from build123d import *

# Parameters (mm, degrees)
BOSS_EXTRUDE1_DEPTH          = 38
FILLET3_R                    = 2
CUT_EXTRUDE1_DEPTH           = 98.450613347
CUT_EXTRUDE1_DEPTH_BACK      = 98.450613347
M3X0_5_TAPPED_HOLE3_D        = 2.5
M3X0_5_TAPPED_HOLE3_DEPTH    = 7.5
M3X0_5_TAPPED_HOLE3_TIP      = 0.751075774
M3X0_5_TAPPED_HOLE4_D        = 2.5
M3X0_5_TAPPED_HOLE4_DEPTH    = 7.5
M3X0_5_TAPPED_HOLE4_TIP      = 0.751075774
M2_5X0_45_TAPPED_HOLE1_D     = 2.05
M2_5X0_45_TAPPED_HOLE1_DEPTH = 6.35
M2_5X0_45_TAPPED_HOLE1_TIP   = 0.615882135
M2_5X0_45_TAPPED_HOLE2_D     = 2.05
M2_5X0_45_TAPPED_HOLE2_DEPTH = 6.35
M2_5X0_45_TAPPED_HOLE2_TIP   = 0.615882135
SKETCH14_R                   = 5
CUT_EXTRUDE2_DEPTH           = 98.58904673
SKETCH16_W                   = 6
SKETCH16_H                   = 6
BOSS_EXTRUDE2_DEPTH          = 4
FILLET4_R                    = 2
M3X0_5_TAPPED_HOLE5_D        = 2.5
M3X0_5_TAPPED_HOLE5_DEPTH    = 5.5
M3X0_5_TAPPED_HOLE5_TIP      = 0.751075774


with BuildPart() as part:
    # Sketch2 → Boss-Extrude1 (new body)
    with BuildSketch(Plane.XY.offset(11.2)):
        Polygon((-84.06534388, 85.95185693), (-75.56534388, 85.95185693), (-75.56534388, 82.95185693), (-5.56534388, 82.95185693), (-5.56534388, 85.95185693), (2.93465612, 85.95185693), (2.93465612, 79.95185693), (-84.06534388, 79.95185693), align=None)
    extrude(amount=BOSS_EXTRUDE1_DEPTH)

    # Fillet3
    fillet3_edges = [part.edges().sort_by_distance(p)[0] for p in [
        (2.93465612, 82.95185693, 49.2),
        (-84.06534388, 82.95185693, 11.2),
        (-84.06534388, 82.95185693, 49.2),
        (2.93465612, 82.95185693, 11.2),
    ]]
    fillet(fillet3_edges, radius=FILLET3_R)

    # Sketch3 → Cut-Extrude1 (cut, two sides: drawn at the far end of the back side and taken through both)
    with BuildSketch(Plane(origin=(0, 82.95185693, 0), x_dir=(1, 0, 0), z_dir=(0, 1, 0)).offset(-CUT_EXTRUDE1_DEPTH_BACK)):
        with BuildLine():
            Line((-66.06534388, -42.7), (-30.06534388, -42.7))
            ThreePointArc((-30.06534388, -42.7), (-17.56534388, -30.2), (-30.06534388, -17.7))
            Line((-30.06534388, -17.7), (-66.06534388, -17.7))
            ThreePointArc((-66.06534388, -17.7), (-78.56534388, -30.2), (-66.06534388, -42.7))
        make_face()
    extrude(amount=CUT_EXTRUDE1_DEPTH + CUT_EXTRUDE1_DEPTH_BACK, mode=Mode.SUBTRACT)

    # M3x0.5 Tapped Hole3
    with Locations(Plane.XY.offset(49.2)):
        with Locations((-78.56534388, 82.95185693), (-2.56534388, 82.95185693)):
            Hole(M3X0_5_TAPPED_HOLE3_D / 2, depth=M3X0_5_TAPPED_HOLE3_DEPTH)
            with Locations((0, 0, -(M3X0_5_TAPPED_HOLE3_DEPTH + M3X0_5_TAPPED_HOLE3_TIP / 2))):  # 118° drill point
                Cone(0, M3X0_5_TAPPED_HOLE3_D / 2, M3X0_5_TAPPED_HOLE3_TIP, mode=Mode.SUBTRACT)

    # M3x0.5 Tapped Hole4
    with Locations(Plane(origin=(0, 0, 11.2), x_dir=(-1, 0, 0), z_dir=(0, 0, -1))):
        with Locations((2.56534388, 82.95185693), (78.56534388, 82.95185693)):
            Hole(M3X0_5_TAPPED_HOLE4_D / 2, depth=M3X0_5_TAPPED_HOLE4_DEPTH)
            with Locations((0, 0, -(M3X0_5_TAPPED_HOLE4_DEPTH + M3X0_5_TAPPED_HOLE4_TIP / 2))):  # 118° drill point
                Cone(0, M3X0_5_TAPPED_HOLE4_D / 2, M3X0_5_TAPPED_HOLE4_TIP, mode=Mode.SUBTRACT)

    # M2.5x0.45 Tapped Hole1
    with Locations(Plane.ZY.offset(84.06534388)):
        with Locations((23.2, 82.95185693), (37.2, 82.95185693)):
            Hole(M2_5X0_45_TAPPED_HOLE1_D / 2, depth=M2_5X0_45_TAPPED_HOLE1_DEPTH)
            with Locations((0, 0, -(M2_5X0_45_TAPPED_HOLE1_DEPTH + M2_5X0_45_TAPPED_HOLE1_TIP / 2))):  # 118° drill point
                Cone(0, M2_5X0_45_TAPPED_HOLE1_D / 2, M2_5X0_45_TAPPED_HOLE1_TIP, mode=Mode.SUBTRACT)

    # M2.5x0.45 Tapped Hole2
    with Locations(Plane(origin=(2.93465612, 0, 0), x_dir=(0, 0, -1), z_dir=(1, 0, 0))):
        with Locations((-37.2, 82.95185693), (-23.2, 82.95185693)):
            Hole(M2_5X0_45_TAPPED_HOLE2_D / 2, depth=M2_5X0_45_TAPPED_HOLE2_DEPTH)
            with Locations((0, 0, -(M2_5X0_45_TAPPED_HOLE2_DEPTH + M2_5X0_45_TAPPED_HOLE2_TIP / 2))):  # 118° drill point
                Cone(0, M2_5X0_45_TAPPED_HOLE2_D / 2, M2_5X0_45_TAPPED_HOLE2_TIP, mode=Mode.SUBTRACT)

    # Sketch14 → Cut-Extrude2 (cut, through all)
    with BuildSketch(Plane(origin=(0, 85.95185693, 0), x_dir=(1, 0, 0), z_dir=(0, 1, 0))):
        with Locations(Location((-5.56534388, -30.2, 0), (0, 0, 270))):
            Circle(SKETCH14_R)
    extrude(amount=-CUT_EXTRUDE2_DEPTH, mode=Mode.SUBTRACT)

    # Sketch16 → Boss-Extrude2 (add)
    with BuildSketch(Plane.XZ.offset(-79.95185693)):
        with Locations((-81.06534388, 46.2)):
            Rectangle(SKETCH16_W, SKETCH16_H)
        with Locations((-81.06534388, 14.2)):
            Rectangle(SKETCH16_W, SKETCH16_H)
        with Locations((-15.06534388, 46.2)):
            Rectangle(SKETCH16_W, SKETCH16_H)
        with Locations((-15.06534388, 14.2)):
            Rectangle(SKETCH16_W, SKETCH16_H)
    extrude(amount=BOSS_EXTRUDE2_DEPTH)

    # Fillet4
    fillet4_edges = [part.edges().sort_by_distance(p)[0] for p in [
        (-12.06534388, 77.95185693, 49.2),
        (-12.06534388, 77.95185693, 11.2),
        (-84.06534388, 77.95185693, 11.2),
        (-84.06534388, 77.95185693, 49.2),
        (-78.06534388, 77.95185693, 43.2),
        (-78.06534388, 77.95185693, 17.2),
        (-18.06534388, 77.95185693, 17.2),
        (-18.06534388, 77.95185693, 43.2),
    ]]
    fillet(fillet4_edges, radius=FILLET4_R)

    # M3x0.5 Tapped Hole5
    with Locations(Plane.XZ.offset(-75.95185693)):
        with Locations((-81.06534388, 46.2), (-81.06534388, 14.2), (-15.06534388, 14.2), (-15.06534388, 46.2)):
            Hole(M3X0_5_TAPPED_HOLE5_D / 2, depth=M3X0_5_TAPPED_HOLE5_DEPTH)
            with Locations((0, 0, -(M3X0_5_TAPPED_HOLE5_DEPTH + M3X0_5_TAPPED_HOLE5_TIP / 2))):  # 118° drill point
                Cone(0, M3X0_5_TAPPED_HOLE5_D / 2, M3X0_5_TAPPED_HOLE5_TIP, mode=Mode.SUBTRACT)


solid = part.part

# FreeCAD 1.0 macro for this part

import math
import FreeCAD as App
import Part
import Sketcher

V = App.Vector


def edges_at(feature, points):
    """Names of the edges that pass closest to the given points."""
    edges = feature.Shape.Edges
    near = lambda p: min(range(len(edges)), key=lambda i: edges[i].distToShape(Part.Vertex(*p))[0])
    return sorted({f"Edge{near(p) + 1}" for p in points})

doc = App.newDocument("Part")
params = doc.addObject("Spreadsheet::Sheet", "Params")
for row, (alias, value) in enumerate([
    ("sketch1_width", "87 mm"),
    ("sketch1_width2", "70 mm"),
    ("sketch1_height", "6 mm"),
    ("sketch1_height2", "3 mm"),
    ("pad1_length", "38 mm"),
    ("fillet_radius", "2 mm"),
    ("sketch2_radius", "12.5 mm"),
    ("sketch2_width", "36 mm"),
    ("sketch3_diameter", "2.5 mm"),
    ("hole_diameter", "2.5 mm"),
    ("hole_depth", "7.5 mm"),
    ("sketch4_diameter", "2.5 mm"),
    ("hole2_diameter", "2.5 mm"),
    ("hole2_depth", "7.5 mm"),
    ("sketch5_diameter", "2.05 mm"),
    ("hole3_diameter", "2.05 mm"),
    ("hole3_depth", "6.35 mm"),
    ("sketch6_diameter", "2.05 mm"),
    ("hole4_diameter", "2.05 mm"),
    ("hole4_depth", "6.35 mm"),
    ("sketch7_diameter", "10 mm"),
    ("sketch8_width", "6 mm"),
    ("pad2_length", "4 mm"),
    ("fillet2_radius", "2 mm"),
    ("sketch9_diameter", "2.5 mm"),
    ("hole5_diameter", "2.5 mm"),
    ("hole5_depth", "5.5 mm"),
], start=1):
    params.set(f"A{row}", alias)
    params.set(f"B{row}", "=" + value)
    params.setAlias(f"B{row}", alias)

body = doc.addObject("PartDesign::Body", "Body")

# Sketch on XY plane
sketch1 = body.newObject("Sketcher::SketchObject", "Sketch")
sketch1.AttachmentSupport = (doc.getObject("XY_Plane"), [""])
sketch1.MapMode = "FlatFace"
sketch1.AttachmentOffset = App.Placement(V(0, 0, 11.2), App.Rotation())
sketch1.addGeometry(Part.LineSegment(V(-75.6, 86, 0), V(-84.1, 86, 0)), False)
sketch1.addGeometry(Part.LineSegment(V(-84.1, 86, 0), V(-84.1, 80, 0)), False)
sketch1.addGeometry(Part.LineSegment(V(-84.1, 80, 0), V(2.9, 80, 0)), False)
sketch1.addGeometry(Part.LineSegment(V(2.9, 80, 0), V(2.9, 86, 0)), False)
sketch1.addGeometry(Part.LineSegment(V(2.9, 86, 0), V(-5.6, 86, 0)), False)
sketch1.addGeometry(Part.LineSegment(V(-5.6, 86, 0), V(-5.6, 83, 0)), False)
sketch1.addGeometry(Part.LineSegment(V(-5.6, 83, 0), V(-75.6, 83, 0)), False)
sketch1.addGeometry(Part.LineSegment(V(-75.6, 83, 0), V(-75.6, 86, 0)), False)
sketch1.addConstraint(Sketcher.Constraint("Coincident", 0, 2, 1, 1))
sketch1.addConstraint(Sketcher.Constraint("Coincident", 1, 2, 2, 1))
sketch1.addConstraint(Sketcher.Constraint("Coincident", 2, 2, 3, 1))
sketch1.addConstraint(Sketcher.Constraint("Coincident", 3, 2, 4, 1))
sketch1.addConstraint(Sketcher.Constraint("Coincident", 4, 2, 5, 1))
sketch1.addConstraint(Sketcher.Constraint("Coincident", 5, 2, 6, 1))
sketch1.addConstraint(Sketcher.Constraint("Coincident", 6, 2, 7, 1))
sketch1.addConstraint(Sketcher.Constraint("Coincident", 7, 2, 0, 1))
sketch1.addConstraint(Sketcher.Constraint("Horizontal", 0))
sketch1.addConstraint(Sketcher.Constraint("Vertical", 1))
sketch1.addConstraint(Sketcher.Constraint("Horizontal", 2))
sketch1.addConstraint(Sketcher.Constraint("Vertical", 3))
sketch1.addConstraint(Sketcher.Constraint("Horizontal", 4))
sketch1.addConstraint(Sketcher.Constraint("Vertical", 5))
sketch1.addConstraint(Sketcher.Constraint("Horizontal", 6))
sketch1.addConstraint(Sketcher.Constraint("Vertical", 7))
sketch1.addConstraint(Sketcher.Constraint("Horizontal", 0, 2, 3, 2))
sketch1.addConstraint(Sketcher.Constraint("Equal", 0, 4))
sketch1.addConstraint(Sketcher.Constraint("DistanceX", 2, 1, 2, 2, 87.0))
sketch1.addConstraint(Sketcher.Constraint("DistanceX", 6, 2, 6, 1, 70.0))
sketch1.addConstraint(Sketcher.Constraint("DistanceY", 1, 2, 1, 1, 6.0))
sketch1.addConstraint(Sketcher.Constraint("DistanceY", 5, 2, 5, 1, 3.0))
sketch1.addConstraint(Sketcher.Constraint("DistanceX", 0, 2, -1, 1, 84.065344))
sketch1.addConstraint(Sketcher.Constraint("DistanceY", -1, 1, 0, 2, 85.951857))
sketch1.setExpression("Constraints[18]", "Params.sketch1_width")
sketch1.setExpression("Constraints[19]", "Params.sketch1_width2")
sketch1.setExpression("Constraints[20]", "Params.sketch1_height")
sketch1.setExpression("Constraints[21]", "Params.sketch1_height2")
pad1 = body.newObject("PartDesign::Pad", "Pad")
pad1.Profile = sketch1
pad1.setExpression("Length", "Params.pad1_length")
doc.recompute()

fillet = body.newObject("PartDesign::Fillet", "Fillet")
fillet.Base = (pad1, edges_at(pad1, [
    (2.935, 82.952, 49.2),
    (-84.065, 82.952, 11.2),
    (-84.065, 82.952, 49.2),
    (2.935, 82.952, 11.2),
]))
fillet.setExpression("Radius", "Params.fillet_radius")

# Sketch on XZ plane
sketch2 = body.newObject("Sketcher::SketchObject", "Sketch001")
sketch2.AttachmentSupport = (doc.getObject("XZ_Plane"), [""])
sketch2.MapMode = "FlatFace"
sketch2.AttachmentOffset = App.Placement(V(0, 0, -82.951857), App.Rotation())
sketch2.addGeometry(Part.LineSegment(V(-66, 43, 0), V(-30, 43, 0)), False)
sketch2.addGeometry(Part.ArcOfCircle(Part.Circle(V(-30, 30, 0), V(0, 0, 1), 12), math.radians(-90), math.radians(90)), False)
sketch2.addGeometry(Part.LineSegment(V(-30, 18, 0), V(-66, 18, 0)), False)
sketch2.addGeometry(Part.ArcOfCircle(Part.Circle(V(-66, 30, 0), V(0, 0, 1), 12), math.radians(90), math.radians(270)), False)
sketch2.addConstraint(Sketcher.Constraint("Tangent", 0, 2, 1, 2))
sketch2.addConstraint(Sketcher.Constraint("Tangent", 1, 1, 2, 1))
sketch2.addConstraint(Sketcher.Constraint("Tangent", 2, 2, 3, 2))
sketch2.addConstraint(Sketcher.Constraint("Tangent", 3, 1, 0, 1))
sketch2.addConstraint(Sketcher.Constraint("Horizontal", 0))
sketch2.addConstraint(Sketcher.Constraint("Horizontal", 2))
sketch2.addConstraint(Sketcher.Constraint("Radius", 1, 12.5))
sketch2.addConstraint(Sketcher.Constraint("DistanceX", 0, 1, 0, 2, 36.0))
sketch2.addConstraint(Sketcher.Constraint("DistanceY", -1, 1, 1, 3, 30.2))
sketch2.addConstraint(Sketcher.Constraint("DistanceX", 1, 3, -1, 1, 30.065344))
sketch2.setExpression("Constraints[6]", "Params.sketch2_radius")
sketch2.setExpression("Constraints[7]", "Params.sketch2_width")
pocket1 = body.newObject("PartDesign::Pocket", "Pocket")
pocket1.Profile = sketch2
pocket1.Type = "ThroughAll"
pocket1.Midplane = True

# Sketch on XY plane
sketch3 = body.newObject("Sketcher::SketchObject", "Sketch002")
sketch3.AttachmentSupport = (doc.getObject("XY_Plane"), [""])
sketch3.MapMode = "FlatFace"
sketch3.AttachmentOffset = App.Placement(V(0, 0, 49.2), App.Rotation())
sketch3.addGeometry(Part.Circle(V(-78.6, 83, 0), V(0, 0, 1), 1.2), False)
sketch3.addGeometry(Part.Circle(V(-2.6, 83, 0), V(0, 0, 1), 1.2), False)
sketch3.addConstraint(Sketcher.Constraint("Equal", 0, 1))
sketch3.addConstraint(Sketcher.Constraint("Horizontal", 0, 3, 1, 3))
sketch3.addConstraint(Sketcher.Constraint("Diameter", 0, 2.5))
sketch3.addConstraint(Sketcher.Constraint("DistanceX", 0, 3, 1, 3, 76.0))
sketch3.addConstraint(Sketcher.Constraint("DistanceX", 0, 3, -1, 1, 78.565344))
sketch3.addConstraint(Sketcher.Constraint("DistanceY", -1, 1, 0, 3, 82.951857))
sketch3.setExpression("Constraints[2]", "Params.sketch3_diameter")
doc.recompute()
hole = body.newObject("PartDesign::Hole", "Hole")
hole.Profile = sketch3
hole.ThreadType = "None"
hole.setExpression("Diameter", "Params.hole_diameter")
hole.DepthType = "Dimension"
hole.setExpression("Depth", "Params.hole_depth")
hole.DrillPoint = "Angled"
hole.DrillPointAngle = 118

# Sketch on XY plane
sketch4 = body.newObject("Sketcher::SketchObject", "Sketch003")
sketch4.AttachmentSupport = (doc.getObject("XY_Plane"), [""])
sketch4.MapMode = "FlatFace"
sketch4.AttachmentOffset = App.Placement(V(0, 0, 11.2), App.Rotation())
sketch4.addGeometry(Part.Circle(V(-2.6, 83, 0), V(0, 0, 1), 1.2), False)
sketch4.addGeometry(Part.Circle(V(-78.6, 83, 0), V(0, 0, 1), 1.2), False)
sketch4.addConstraint(Sketcher.Constraint("Equal", 0, 1))
sketch4.addConstraint(Sketcher.Constraint("Horizontal", 0, 3, 1, 3))
sketch4.addConstraint(Sketcher.Constraint("Diameter", 0, 2.5))
sketch4.addConstraint(Sketcher.Constraint("DistanceX", 1, 3, 0, 3, 76.0))
sketch4.addConstraint(Sketcher.Constraint("DistanceX", 0, 3, -1, 1, 2.565344))
sketch4.addConstraint(Sketcher.Constraint("DistanceY", -1, 1, 0, 3, 82.951857))
sketch4.setExpression("Constraints[2]", "Params.sketch4_diameter")
doc.recompute()
hole2 = body.newObject("PartDesign::Hole", "Hole001")
hole2.Profile = sketch4
hole2.ThreadType = "None"
hole2.setExpression("Diameter", "Params.hole2_diameter")
hole2.DepthType = "Dimension"
hole2.setExpression("Depth", "Params.hole2_depth")
hole2.DrillPoint = "Angled"
hole2.DrillPointAngle = 118
hole2.Reversed = True

# Sketch on YZ plane
sketch5 = body.newObject("Sketcher::SketchObject", "Sketch004")
sketch5.AttachmentSupport = (doc.getObject("YZ_Plane"), [""])
sketch5.MapMode = "FlatFace"
sketch5.AttachmentOffset = App.Placement(V(0, 0, -84.065344), App.Rotation())
sketch5.addGeometry(Part.Circle(V(83, 23.2, 0), V(0, 0, 1), 1), False)
sketch5.addGeometry(Part.Circle(V(83, 37.2, 0), V(0, 0, 1), 1), False)
sketch5.addConstraint(Sketcher.Constraint("Equal", 0, 1))
sketch5.addConstraint(Sketcher.Constraint("Vertical", 0, 3, 1, 3))
sketch5.addConstraint(Sketcher.Constraint("Diameter", 0, 2.05))
sketch5.addConstraint(Sketcher.Constraint("DistanceY", 0, 3, 1, 3, 14.0))
sketch5.addConstraint(Sketcher.Constraint("DistanceY", -1, 1, 0, 3, 23.2))
sketch5.addConstraint(Sketcher.Constraint("DistanceX", -1, 1, 0, 3, 82.951857))
sketch5.setExpression("Constraints[2]", "Params.sketch5_diameter")
doc.recompute()
hole3 = body.newObject("PartDesign::Hole", "Hole002")
hole3.Profile = sketch5
hole3.ThreadType = "None"
hole3.setExpression("Diameter", "Params.hole3_diameter")
hole3.DepthType = "Dimension"
hole3.setExpression("Depth", "Params.hole3_depth")
hole3.DrillPoint = "Angled"
hole3.DrillPointAngle = 118
hole3.Reversed = True

# Sketch on YZ plane
sketch6 = body.newObject("Sketcher::SketchObject", "Sketch005")
sketch6.AttachmentSupport = (doc.getObject("YZ_Plane"), [""])
sketch6.MapMode = "FlatFace"
sketch6.AttachmentOffset = App.Placement(V(0, 0, 2.934656), App.Rotation())
sketch6.addGeometry(Part.Circle(V(83, 37.2, 0), V(0, 0, 1), 1), False)
sketch6.addGeometry(Part.Circle(V(83, 23.2, 0), V(0, 0, 1), 1), False)
sketch6.addConstraint(Sketcher.Constraint("Equal", 0, 1))
sketch6.addConstraint(Sketcher.Constraint("Vertical", 0, 3, 1, 3))
sketch6.addConstraint(Sketcher.Constraint("Diameter", 0, 2.05))
sketch6.addConstraint(Sketcher.Constraint("DistanceY", 1, 3, 0, 3, 14.0))
sketch6.addConstraint(Sketcher.Constraint("DistanceY", -1, 1, 0, 3, 37.2))
sketch6.addConstraint(Sketcher.Constraint("DistanceX", -1, 1, 0, 3, 82.951857))
sketch6.setExpression("Constraints[2]", "Params.sketch6_diameter")
doc.recompute()
hole4 = body.newObject("PartDesign::Hole", "Hole003")
hole4.Profile = sketch6
hole4.ThreadType = "None"
hole4.setExpression("Diameter", "Params.hole4_diameter")
hole4.DepthType = "Dimension"
hole4.setExpression("Depth", "Params.hole4_depth")
hole4.DrillPoint = "Angled"
hole4.DrillPointAngle = 118

# Sketch on XZ plane
sketch7 = body.newObject("Sketcher::SketchObject", "Sketch006")
sketch7.AttachmentSupport = (doc.getObject("XZ_Plane"), [""])
sketch7.MapMode = "FlatFace"
sketch7.AttachmentOffset = App.Placement(V(0, 0, -85.951857), App.Rotation())
sketch7.addGeometry(Part.Circle(V(-6, 30, 0), V(0, 0, 1), 5), False)
sketch7.addConstraint(Sketcher.Constraint("Diameter", 0, 10.0))
sketch7.addConstraint(Sketcher.Constraint("DistanceY", -1, 1, 0, 3, 30.2))
sketch7.addConstraint(Sketcher.Constraint("DistanceX", 0, 3, -1, 1, 5.565344))
sketch7.setExpression("Constraints[0]", "Params.sketch7_diameter")
pocket2 = body.newObject("PartDesign::Pocket", "Pocket001")
pocket2.Profile = sketch7
pocket2.Type = "ThroughAll"
pocket2.Reversed = True

# Sketch on XZ plane
sketch8 = body.newObject("Sketcher::SketchObject", "Sketch007")
sketch8.AttachmentSupport = (doc.getObject("XZ_Plane"), [""])
sketch8.MapMode = "FlatFace"
sketch8.AttachmentOffset = App.Placement(V(0, 0, -79.951857), App.Rotation())
sketch8.addGeometry(Part.LineSegment(V(-84, 49, 0), V(-84, 43, 0)), False)
sketch8.addGeometry(Part.LineSegment(V(-84, 43, 0), V(-78, 43, 0)), False)
sketch8.addGeometry(Part.LineSegment(V(-78, 43, 0), V(-78, 49, 0)), False)
sketch8.addGeometry(Part.LineSegment(V(-78, 49, 0), V(-84, 49, 0)), False)
sketch8.addGeometry(Part.LineSegment(V(-84, 17, 0), V(-84, 11, 0)), False)
sketch8.addGeometry(Part.LineSegment(V(-84, 11, 0), V(-78, 11, 0)), False)
sketch8.addGeometry(Part.LineSegment(V(-78, 11, 0), V(-78, 17, 0)), False)
sketch8.addGeometry(Part.LineSegment(V(-78, 17, 0), V(-84, 17, 0)), False)
sketch8.addGeometry(Part.LineSegment(V(-18, 49, 0), V(-18, 43, 0)), False)
sketch8.addGeometry(Part.LineSegment(V(-18, 43, 0), V(-12, 43, 0)), False)
sketch8.addGeometry(Part.LineSegment(V(-12, 43, 0), V(-12, 49, 0)), False)
sketch8.addGeometry(Part.LineSegment(V(-12, 49, 0), V(-18, 49, 0)), False)
sketch8.addGeometry(Part.LineSegment(V(-18, 17, 0), V(-18, 11, 0)), False)
sketch8.addGeometry(Part.LineSegment(V(-18, 11, 0), V(-12, 11, 0)), False)
sketch8.addGeometry(Part.LineSegment(V(-12, 11, 0), V(-12, 17, 0)), False)
sketch8.addGeometry(Part.LineSegment(V(-12, 17, 0), V(-18, 17, 0)), False)
sketch8.addConstraint(Sketcher.Constraint("Coincident", 0, 2, 1, 1))
sketch8.addConstraint(Sketcher.Constraint("Coincident", 1, 2, 2, 1))
sketch8.addConstraint(Sketcher.Constraint("Coincident", 2, 2, 3, 1))
sketch8.addConstraint(Sketcher.Constraint("Coincident", 3, 2, 0, 1))
sketch8.addConstraint(Sketcher.Constraint("Coincident", 4, 2, 5, 1))
sketch8.addConstraint(Sketcher.Constraint("Coincident", 5, 2, 6, 1))
sketch8.addConstraint(Sketcher.Constraint("Coincident", 6, 2, 7, 1))
sketch8.addConstraint(Sketcher.Constraint("Coincident", 7, 2, 4, 1))
sketch8.addConstraint(Sketcher.Constraint("Coincident", 8, 2, 9, 1))
sketch8.addConstraint(Sketcher.Constraint("Coincident", 9, 2, 10, 1))
sketch8.addConstraint(Sketcher.Constraint("Coincident", 10, 2, 11, 1))
sketch8.addConstraint(Sketcher.Constraint("Coincident", 11, 2, 8, 1))
sketch8.addConstraint(Sketcher.Constraint("Coincident", 12, 2, 13, 1))
sketch8.addConstraint(Sketcher.Constraint("Coincident", 13, 2, 14, 1))
sketch8.addConstraint(Sketcher.Constraint("Coincident", 14, 2, 15, 1))
sketch8.addConstraint(Sketcher.Constraint("Coincident", 15, 2, 12, 1))
sketch8.addConstraint(Sketcher.Constraint("Vertical", 0))
sketch8.addConstraint(Sketcher.Constraint("Horizontal", 1))
sketch8.addConstraint(Sketcher.Constraint("Vertical", 2))
sketch8.addConstraint(Sketcher.Constraint("Horizontal", 3))
sketch8.addConstraint(Sketcher.Constraint("Vertical", 4))
sketch8.addConstraint(Sketcher.Constraint("Horizontal", 5))
sketch8.addConstraint(Sketcher.Constraint("Vertical", 6))
sketch8.addConstraint(Sketcher.Constraint("Horizontal", 7))
sketch8.addConstraint(Sketcher.Constraint("Vertical", 8))
sketch8.addConstraint(Sketcher.Constraint("Horizontal", 9))
sketch8.addConstraint(Sketcher.Constraint("Vertical", 10))
sketch8.addConstraint(Sketcher.Constraint("Horizontal", 11))
sketch8.addConstraint(Sketcher.Constraint("Vertical", 12))
sketch8.addConstraint(Sketcher.Constraint("Horizontal", 13))
sketch8.addConstraint(Sketcher.Constraint("Vertical", 14))
sketch8.addConstraint(Sketcher.Constraint("Horizontal", 15))
sketch8.addConstraint(Sketcher.Constraint("Horizontal", 1, 2, 8, 2))
sketch8.addConstraint(Sketcher.Constraint("Horizontal", 3, 2, 10, 2))
sketch8.addConstraint(Sketcher.Constraint("Horizontal", 5, 2, 12, 2))
sketch8.addConstraint(Sketcher.Constraint("Horizontal", 7, 2, 14, 2))
sketch8.addConstraint(Sketcher.Constraint("Vertical", 3, 2, 4, 2))
sketch8.addConstraint(Sketcher.Constraint("Vertical", 2, 2, 5, 2))
sketch8.addConstraint(Sketcher.Constraint("Vertical", 11, 2, 12, 2))
sketch8.addConstraint(Sketcher.Constraint("Vertical", 10, 2, 13, 2))
sketch8.addConstraint(Sketcher.Constraint("Equal", 7, 9))
sketch8.addConstraint(Sketcher.Constraint("Equal", 15, 0))
sketch8.addConstraint(Sketcher.Constraint("Equal", 2, 4))
sketch8.addConstraint(Sketcher.Constraint("DistanceX", 1, 1, 1, 2, 6.0))
sketch8.addConstraint(Sketcher.Constraint("DistanceY", 4, 2, 0, 2, 32.0))
sketch8.addConstraint(Sketcher.Constraint("DistanceX", 1, 2, 8, 2, 60.0))
sketch8.addConstraint(Sketcher.Constraint("DistanceY", -1, 1, 0, 2, 43.2))
sketch8.addConstraint(Sketcher.Constraint("DistanceX", 0, 2, -1, 1, 84.065344))
sketch8.setExpression("Constraints[43]", "Params.sketch8_width")
pad2 = body.newObject("PartDesign::Pad", "Pad001")
pad2.Profile = sketch8
pad2.setExpression("Length", "Params.pad2_length")
doc.recompute()

fillet2 = body.newObject("PartDesign::Fillet", "Fillet001")
fillet2.Base = (pad2, edges_at(pad2, [
    (-12.065, 77.952, 49.2),
    (-12.065, 77.952, 11.2),
    (-84.065, 77.952, 11.2),
    (-84.065, 77.952, 49.2),
    (-78.065, 77.952, 43.2),
    (-78.065, 77.952, 17.2),
    (-18.065, 77.952, 17.2),
    (-18.065, 77.952, 43.2),
]))
fillet2.setExpression("Radius", "Params.fillet2_radius")

# Sketch on XZ plane
sketch9 = body.newObject("Sketcher::SketchObject", "Sketch008")
sketch9.AttachmentSupport = (doc.getObject("XZ_Plane"), [""])
sketch9.MapMode = "FlatFace"
sketch9.AttachmentOffset = App.Placement(V(0, 0, -75.951857), App.Rotation())
sketch9.addGeometry(Part.Circle(V(-81.1, 46.2, 0), V(0, 0, 1), 1.2), False)
sketch9.addGeometry(Part.Circle(V(-81.1, 14.2, 0), V(0, 0, 1), 1.2), False)
sketch9.addGeometry(Part.Circle(V(-15.1, 14.2, 0), V(0, 0, 1), 1.2), False)
sketch9.addGeometry(Part.Circle(V(-15.1, 46.2, 0), V(0, 0, 1), 1.2), False)
sketch9.addConstraint(Sketcher.Constraint("Equal", 0, 1))
sketch9.addConstraint(Sketcher.Constraint("Equal", 1, 2))
sketch9.addConstraint(Sketcher.Constraint("Equal", 2, 3))
sketch9.addConstraint(Sketcher.Constraint("Horizontal", 1, 3, 2, 3))
sketch9.addConstraint(Sketcher.Constraint("Horizontal", 0, 3, 3, 3))
sketch9.addConstraint(Sketcher.Constraint("Vertical", 0, 3, 1, 3))
sketch9.addConstraint(Sketcher.Constraint("Vertical", 2, 3, 3, 3))
sketch9.addConstraint(Sketcher.Constraint("Diameter", 0, 2.5))
sketch9.addConstraint(Sketcher.Constraint("DistanceY", 1, 3, 0, 3, 32.0))
sketch9.addConstraint(Sketcher.Constraint("DistanceX", 1, 3, 2, 3, 66.0))
sketch9.addConstraint(Sketcher.Constraint("DistanceY", -1, 1, 0, 3, 46.2))
sketch9.addConstraint(Sketcher.Constraint("DistanceX", 0, 3, -1, 1, 81.065344))
sketch9.setExpression("Constraints[7]", "Params.sketch9_diameter")
doc.recompute()
hole5 = body.newObject("PartDesign::Hole", "Hole004")
hole5.Profile = sketch9
hole5.ThreadType = "None"
hole5.setExpression("Diameter", "Params.hole5_diameter")
hole5.DepthType = "Dimension"
hole5.setExpression("Depth", "Params.hole5_depth")
hole5.DrillPoint = "Angled"
hole5.DrillPointAngle = 118

doc.recompute()
